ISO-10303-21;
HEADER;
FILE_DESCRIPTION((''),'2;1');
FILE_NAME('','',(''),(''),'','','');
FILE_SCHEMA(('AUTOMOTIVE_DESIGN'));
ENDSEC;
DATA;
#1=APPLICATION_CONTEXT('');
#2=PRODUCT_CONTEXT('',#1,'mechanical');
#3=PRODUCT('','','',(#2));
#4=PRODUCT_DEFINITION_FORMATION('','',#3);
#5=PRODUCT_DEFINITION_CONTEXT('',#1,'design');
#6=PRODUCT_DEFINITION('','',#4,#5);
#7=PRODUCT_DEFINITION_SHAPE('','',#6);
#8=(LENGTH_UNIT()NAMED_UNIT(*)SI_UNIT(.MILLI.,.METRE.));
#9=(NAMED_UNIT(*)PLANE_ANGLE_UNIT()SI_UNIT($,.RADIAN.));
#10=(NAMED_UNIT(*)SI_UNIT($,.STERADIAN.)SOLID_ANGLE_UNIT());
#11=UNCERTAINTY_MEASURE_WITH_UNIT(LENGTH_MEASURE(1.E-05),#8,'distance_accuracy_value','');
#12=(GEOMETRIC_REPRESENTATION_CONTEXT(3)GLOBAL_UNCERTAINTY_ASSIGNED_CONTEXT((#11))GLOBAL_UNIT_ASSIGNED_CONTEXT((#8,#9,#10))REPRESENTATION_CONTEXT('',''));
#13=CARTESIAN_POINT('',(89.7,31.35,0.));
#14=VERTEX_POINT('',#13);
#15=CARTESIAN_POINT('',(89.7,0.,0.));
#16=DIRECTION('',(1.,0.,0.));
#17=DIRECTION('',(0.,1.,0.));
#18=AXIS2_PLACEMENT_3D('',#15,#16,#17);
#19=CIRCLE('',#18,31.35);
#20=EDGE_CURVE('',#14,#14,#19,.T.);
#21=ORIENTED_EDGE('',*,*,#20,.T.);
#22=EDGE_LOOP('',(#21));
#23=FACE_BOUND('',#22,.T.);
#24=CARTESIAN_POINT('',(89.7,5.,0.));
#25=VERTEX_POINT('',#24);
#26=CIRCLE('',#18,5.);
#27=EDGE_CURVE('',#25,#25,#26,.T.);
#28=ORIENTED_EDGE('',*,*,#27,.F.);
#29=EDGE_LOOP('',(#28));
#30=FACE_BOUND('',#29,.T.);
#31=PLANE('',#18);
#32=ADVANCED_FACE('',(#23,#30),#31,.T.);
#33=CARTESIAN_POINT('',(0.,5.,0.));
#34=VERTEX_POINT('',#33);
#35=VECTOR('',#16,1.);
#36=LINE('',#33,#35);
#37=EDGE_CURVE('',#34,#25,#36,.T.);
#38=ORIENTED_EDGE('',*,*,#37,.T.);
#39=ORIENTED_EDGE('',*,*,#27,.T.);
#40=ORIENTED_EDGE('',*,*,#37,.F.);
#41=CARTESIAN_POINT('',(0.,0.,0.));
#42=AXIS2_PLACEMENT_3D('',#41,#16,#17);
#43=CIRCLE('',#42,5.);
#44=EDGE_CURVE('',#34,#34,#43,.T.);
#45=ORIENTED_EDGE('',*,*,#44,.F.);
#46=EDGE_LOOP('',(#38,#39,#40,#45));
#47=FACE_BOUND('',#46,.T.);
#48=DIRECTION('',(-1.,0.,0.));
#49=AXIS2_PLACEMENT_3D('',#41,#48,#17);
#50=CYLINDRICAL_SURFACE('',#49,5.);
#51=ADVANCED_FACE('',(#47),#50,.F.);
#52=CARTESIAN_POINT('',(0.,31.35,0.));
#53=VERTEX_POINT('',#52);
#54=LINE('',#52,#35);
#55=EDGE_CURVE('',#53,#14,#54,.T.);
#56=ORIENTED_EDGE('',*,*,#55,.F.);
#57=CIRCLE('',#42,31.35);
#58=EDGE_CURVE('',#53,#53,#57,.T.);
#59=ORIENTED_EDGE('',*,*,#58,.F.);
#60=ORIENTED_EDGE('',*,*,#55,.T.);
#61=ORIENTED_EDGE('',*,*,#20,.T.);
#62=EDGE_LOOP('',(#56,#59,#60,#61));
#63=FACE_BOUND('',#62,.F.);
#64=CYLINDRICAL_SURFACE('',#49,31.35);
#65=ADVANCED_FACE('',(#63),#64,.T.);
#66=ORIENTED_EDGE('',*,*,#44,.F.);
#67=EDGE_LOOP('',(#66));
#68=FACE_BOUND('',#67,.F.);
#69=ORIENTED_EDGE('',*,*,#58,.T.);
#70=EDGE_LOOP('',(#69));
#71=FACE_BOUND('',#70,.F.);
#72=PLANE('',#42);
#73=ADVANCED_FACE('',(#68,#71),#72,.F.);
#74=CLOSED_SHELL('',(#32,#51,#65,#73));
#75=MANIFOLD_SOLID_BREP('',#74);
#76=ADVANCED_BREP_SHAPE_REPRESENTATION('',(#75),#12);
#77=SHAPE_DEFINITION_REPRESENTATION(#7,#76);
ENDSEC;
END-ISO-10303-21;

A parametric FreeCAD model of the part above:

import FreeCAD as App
import Part
import Sketcher
from FreeCAD import Vector
Q = App.Units.Quantity

doc = App.newDocument("Part")
body = doc.addObject("PartDesign::Body", "Body")

# Sketch on YZ plane
sketch1 = body.newObject("Sketcher::SketchObject", "Sketch")
sketch1.AttachmentSupport = (doc.getObject("YZ_Plane"), [""])
sketch1.MapMode = "FlatFace"
sketch1.addGeometry(Part.Circle(Vector(0, 0, 0), Vector(0, 0, 1), 31.35), False)
sketch1.addGeometry(Part.Circle(Vector(0, 0, 0), Vector(0, 0, 1), 5), False)
sketch1.addConstraint(Sketcher.Constraint("Coincident", 0, 3, -1, 1))
sketch1.addConstraint(Sketcher.Constraint("Coincident", 1, 3, -1, 1))
sketch1.addConstraint(Sketcher.Constraint("Diameter", 1, Q("10 mm")))
sketch1.addConstraint(Sketcher.Constraint("Diameter", 0, Q("62.7 mm")))
pad1 = body.newObject("PartDesign::Pad", "Pad")
pad1.Profile = sketch1
pad1.Length = 89.7

doc.recompute()
